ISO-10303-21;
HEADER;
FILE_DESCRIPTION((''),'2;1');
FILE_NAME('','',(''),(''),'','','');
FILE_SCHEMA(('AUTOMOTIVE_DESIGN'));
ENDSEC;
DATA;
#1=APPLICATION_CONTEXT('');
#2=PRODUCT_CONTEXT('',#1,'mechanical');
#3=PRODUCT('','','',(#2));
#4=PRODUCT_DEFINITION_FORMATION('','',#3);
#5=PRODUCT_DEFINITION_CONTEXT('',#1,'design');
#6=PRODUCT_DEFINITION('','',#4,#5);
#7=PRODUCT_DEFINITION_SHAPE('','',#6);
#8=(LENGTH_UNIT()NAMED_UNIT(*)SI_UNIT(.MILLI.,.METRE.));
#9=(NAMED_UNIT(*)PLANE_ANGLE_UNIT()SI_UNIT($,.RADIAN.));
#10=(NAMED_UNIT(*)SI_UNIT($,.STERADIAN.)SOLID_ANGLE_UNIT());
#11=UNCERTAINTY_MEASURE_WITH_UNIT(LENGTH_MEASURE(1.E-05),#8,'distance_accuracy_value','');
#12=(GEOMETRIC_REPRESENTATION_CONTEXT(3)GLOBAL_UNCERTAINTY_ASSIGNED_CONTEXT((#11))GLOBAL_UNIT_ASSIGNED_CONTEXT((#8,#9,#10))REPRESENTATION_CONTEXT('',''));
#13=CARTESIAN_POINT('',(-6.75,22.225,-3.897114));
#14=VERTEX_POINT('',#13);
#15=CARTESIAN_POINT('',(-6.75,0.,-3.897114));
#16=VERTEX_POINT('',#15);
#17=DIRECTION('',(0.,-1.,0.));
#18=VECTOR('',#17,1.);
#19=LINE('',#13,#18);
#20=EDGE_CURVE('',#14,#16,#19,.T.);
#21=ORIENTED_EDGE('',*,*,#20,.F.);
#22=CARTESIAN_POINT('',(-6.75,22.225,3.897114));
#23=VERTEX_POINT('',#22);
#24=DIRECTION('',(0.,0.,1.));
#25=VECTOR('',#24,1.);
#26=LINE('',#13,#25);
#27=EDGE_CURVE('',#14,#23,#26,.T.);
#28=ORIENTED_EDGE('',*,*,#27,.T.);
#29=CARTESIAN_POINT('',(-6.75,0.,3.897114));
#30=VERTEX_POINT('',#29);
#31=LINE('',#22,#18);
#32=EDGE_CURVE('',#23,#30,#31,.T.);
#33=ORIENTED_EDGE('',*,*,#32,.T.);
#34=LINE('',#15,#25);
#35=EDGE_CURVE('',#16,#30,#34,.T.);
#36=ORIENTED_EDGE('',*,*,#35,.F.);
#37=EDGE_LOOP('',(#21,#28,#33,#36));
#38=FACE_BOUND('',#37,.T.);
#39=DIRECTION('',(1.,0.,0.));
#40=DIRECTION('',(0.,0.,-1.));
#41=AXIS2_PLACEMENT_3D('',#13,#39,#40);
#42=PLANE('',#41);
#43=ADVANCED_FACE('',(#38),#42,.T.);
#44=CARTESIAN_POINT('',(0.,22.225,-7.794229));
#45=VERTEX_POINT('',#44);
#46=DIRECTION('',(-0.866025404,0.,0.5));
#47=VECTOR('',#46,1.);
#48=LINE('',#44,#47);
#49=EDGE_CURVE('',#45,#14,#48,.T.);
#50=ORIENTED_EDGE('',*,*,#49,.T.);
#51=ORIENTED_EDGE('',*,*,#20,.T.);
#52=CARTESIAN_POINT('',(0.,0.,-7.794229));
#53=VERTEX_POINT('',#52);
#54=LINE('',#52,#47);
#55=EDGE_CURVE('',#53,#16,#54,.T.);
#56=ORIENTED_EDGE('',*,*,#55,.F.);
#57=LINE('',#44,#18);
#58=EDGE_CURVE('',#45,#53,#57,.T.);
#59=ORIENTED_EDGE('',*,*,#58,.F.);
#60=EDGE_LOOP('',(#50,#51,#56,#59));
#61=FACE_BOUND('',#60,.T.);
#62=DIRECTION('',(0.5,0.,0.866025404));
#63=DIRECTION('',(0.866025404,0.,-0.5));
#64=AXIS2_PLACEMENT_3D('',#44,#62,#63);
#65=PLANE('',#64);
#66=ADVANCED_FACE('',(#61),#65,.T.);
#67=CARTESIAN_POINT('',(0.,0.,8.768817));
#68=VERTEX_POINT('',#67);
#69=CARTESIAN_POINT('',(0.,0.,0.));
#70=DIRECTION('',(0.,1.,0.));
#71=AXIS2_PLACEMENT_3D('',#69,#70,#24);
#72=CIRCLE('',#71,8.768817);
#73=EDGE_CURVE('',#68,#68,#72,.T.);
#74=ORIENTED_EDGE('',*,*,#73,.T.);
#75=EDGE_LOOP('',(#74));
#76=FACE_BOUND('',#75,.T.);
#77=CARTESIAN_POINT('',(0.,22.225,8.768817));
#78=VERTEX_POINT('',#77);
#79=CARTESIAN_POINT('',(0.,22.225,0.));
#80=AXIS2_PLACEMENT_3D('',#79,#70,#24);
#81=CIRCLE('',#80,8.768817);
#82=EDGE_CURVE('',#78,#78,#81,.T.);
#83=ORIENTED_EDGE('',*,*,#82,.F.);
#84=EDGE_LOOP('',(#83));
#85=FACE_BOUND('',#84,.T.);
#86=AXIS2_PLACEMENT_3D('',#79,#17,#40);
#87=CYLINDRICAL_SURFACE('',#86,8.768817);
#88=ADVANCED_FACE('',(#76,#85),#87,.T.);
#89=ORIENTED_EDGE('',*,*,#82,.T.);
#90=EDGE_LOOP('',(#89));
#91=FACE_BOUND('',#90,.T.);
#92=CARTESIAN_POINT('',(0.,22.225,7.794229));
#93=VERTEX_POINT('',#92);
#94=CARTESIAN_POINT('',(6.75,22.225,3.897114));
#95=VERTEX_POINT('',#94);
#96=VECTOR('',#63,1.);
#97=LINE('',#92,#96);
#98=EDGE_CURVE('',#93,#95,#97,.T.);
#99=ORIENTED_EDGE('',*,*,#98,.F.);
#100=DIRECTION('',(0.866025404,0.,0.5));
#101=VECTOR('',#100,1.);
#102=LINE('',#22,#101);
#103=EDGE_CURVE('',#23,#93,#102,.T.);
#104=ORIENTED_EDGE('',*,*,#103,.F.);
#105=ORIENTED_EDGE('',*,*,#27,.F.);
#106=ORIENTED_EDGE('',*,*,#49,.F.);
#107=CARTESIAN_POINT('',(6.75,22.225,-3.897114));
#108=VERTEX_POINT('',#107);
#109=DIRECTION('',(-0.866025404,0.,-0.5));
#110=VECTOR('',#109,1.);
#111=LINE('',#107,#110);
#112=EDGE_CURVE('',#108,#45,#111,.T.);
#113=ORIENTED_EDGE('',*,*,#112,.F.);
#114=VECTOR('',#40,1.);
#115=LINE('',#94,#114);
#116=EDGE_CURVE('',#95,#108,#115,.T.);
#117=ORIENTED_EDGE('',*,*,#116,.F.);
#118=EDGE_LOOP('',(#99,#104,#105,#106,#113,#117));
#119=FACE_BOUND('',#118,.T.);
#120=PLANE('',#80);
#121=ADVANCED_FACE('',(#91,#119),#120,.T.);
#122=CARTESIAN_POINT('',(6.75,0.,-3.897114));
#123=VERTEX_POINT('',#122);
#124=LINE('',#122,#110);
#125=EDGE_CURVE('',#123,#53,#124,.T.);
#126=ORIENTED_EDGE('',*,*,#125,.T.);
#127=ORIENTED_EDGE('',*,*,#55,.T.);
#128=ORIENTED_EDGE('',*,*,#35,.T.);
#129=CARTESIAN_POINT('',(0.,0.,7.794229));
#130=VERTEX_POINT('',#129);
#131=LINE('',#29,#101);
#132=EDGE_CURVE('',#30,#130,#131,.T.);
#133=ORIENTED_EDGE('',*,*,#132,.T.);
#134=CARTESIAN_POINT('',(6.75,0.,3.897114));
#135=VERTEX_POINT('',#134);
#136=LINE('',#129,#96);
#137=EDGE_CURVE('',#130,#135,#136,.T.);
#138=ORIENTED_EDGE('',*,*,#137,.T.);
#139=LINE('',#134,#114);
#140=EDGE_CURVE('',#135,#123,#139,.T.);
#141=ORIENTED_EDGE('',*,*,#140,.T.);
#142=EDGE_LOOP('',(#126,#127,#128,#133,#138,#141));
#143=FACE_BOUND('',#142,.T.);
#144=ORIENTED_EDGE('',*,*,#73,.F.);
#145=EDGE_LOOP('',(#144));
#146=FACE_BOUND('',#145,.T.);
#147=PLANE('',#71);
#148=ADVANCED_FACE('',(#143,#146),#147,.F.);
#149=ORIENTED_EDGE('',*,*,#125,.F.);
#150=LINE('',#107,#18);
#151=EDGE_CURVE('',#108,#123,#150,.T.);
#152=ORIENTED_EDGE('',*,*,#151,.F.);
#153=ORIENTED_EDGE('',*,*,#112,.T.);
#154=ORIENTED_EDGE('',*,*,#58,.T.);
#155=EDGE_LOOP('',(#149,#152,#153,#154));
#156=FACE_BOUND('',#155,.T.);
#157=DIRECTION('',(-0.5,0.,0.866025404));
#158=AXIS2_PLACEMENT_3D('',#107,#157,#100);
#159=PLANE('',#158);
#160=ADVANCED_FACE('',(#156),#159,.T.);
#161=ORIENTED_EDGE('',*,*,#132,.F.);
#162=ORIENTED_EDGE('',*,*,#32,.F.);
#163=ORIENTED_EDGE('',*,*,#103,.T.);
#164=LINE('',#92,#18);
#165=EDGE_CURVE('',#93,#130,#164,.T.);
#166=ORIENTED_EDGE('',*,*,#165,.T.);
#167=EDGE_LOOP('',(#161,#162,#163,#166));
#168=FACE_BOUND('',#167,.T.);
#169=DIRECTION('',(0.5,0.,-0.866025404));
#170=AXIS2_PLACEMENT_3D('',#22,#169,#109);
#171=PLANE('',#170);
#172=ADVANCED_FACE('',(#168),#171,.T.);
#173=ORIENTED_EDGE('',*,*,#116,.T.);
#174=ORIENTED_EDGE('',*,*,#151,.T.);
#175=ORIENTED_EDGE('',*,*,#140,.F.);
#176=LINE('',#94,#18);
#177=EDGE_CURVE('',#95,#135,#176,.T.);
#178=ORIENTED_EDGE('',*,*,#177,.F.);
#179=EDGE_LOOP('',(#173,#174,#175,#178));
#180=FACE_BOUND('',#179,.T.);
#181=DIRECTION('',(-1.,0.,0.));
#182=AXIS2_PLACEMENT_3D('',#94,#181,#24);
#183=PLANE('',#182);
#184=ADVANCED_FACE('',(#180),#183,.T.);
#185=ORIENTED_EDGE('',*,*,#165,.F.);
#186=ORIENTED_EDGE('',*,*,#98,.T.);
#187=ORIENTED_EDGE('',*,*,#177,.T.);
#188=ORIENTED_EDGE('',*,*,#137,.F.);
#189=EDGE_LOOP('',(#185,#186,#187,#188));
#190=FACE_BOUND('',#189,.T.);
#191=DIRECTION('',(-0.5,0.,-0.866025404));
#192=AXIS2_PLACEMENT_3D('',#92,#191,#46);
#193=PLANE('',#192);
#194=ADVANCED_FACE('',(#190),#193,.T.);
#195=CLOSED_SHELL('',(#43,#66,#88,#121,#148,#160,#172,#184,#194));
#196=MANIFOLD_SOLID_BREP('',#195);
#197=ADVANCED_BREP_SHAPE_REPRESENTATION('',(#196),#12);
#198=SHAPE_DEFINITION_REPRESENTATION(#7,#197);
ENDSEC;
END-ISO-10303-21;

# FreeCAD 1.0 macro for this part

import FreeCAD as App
import Part
import Sketcher
from FreeCAD import Vector
Q = App.Units.Quantity

doc = App.newDocument("Part")
body = doc.addObject("PartDesign::Body", "Body")

# Sketch on XZ plane
sketch1 = doc.addObject("Sketcher::SketchObject", "Sketch")
body.addObject(sketch1)
sketch1.AttachmentSupport = (doc.XZ_Plane, [""])
sketch1.MapMode = "FlatFace"
sketch1.addGeometry(Part.Circle(Vector(0, 0, 0), Vector(0, 0, 1), 8.768817), False)
sketch1.addGeometry(Part.LineSegment(Vector(-6.75, -3.897114, 0), Vector(0, -7.794229, 0)), False)
sketch1.addGeometry(Part.LineSegment(Vector(0, -7.794229, 0), Vector(6.75, -3.897114, 0)), False)
sketch1.addGeometry(Part.LineSegment(Vector(6.75, -3.897114, 0), Vector(6.75, 3.897114, 0)), False)
sketch1.addGeometry(Part.LineSegment(Vector(6.75, 3.897114, 0), Vector(0, 7.794229, 0)), False)
sketch1.addGeometry(Part.LineSegment(Vector(0, 7.794229, 0), Vector(-6.75, 3.897114, 0)), False)
sketch1.addGeometry(Part.LineSegment(Vector(-6.75, 3.897114, 0), Vector(-6.75, -3.897114, 0)), False)
sketch1.addConstraint(Sketcher.Constraint("Coincident", 1, 2, 2, 1))
sketch1.addConstraint(Sketcher.Constraint("Coincident", 2, 2, 3, 1))
sketch1.addConstraint(Sketcher.Constraint("Coincident", 3, 2, 4, 1))
sketch1.addConstraint(Sketcher.Constraint("Coincident", 4, 2, 5, 1))
sketch1.addConstraint(Sketcher.Constraint("Coincident", 5, 2, 6, 1))
sketch1.addConstraint(Sketcher.Constraint("Coincident", 6, 2, 1, 1))
sketch1.addConstraint(Sketcher.Constraint("Vertical", 3))
sketch1.addConstraint(Sketcher.Constraint("Vertical", 6))
sketch1.addConstraint(Sketcher.Constraint("Coincident", 0, 3, -1, 1))
sketch1.addConstraint(Sketcher.Constraint("Symmetric", 1, 2, 4, 2, -1, 1))
sketch1.addConstraint(Sketcher.Constraint("Symmetric", 2, 2, 5, 2, -1, 1))
sketch1.addConstraint(Sketcher.Constraint("PointOnObject", 1, 2, -2))
sketch1.addConstraint(Sketcher.Constraint("Parallel", 1, 4))
sketch1.addConstraint(Sketcher.Constraint("Horizontal", 3, 2, 5, 2))
sketch1.addConstraint(Sketcher.Constraint("Angle", 1, Q("-30 deg")))
sketch1.addConstraint(Sketcher.Constraint("Diameter", 0, 17.537634))
sketch1.addConstraint(Sketcher.Constraint("DistanceY", 3, 1, 3, 2, 7.794229))
sketch1.addConstraint(Sketcher.Constraint("DistanceX", -1, 1, 2, 2, 6.75))
pad1 = doc.addObject("PartDesign::Pad", "Pad")
body.addObject(pad1)
pad1.Profile = sketch1
pad1.Length = Q("0.875 in")
pad1.Reversed = True

doc.recompute()
